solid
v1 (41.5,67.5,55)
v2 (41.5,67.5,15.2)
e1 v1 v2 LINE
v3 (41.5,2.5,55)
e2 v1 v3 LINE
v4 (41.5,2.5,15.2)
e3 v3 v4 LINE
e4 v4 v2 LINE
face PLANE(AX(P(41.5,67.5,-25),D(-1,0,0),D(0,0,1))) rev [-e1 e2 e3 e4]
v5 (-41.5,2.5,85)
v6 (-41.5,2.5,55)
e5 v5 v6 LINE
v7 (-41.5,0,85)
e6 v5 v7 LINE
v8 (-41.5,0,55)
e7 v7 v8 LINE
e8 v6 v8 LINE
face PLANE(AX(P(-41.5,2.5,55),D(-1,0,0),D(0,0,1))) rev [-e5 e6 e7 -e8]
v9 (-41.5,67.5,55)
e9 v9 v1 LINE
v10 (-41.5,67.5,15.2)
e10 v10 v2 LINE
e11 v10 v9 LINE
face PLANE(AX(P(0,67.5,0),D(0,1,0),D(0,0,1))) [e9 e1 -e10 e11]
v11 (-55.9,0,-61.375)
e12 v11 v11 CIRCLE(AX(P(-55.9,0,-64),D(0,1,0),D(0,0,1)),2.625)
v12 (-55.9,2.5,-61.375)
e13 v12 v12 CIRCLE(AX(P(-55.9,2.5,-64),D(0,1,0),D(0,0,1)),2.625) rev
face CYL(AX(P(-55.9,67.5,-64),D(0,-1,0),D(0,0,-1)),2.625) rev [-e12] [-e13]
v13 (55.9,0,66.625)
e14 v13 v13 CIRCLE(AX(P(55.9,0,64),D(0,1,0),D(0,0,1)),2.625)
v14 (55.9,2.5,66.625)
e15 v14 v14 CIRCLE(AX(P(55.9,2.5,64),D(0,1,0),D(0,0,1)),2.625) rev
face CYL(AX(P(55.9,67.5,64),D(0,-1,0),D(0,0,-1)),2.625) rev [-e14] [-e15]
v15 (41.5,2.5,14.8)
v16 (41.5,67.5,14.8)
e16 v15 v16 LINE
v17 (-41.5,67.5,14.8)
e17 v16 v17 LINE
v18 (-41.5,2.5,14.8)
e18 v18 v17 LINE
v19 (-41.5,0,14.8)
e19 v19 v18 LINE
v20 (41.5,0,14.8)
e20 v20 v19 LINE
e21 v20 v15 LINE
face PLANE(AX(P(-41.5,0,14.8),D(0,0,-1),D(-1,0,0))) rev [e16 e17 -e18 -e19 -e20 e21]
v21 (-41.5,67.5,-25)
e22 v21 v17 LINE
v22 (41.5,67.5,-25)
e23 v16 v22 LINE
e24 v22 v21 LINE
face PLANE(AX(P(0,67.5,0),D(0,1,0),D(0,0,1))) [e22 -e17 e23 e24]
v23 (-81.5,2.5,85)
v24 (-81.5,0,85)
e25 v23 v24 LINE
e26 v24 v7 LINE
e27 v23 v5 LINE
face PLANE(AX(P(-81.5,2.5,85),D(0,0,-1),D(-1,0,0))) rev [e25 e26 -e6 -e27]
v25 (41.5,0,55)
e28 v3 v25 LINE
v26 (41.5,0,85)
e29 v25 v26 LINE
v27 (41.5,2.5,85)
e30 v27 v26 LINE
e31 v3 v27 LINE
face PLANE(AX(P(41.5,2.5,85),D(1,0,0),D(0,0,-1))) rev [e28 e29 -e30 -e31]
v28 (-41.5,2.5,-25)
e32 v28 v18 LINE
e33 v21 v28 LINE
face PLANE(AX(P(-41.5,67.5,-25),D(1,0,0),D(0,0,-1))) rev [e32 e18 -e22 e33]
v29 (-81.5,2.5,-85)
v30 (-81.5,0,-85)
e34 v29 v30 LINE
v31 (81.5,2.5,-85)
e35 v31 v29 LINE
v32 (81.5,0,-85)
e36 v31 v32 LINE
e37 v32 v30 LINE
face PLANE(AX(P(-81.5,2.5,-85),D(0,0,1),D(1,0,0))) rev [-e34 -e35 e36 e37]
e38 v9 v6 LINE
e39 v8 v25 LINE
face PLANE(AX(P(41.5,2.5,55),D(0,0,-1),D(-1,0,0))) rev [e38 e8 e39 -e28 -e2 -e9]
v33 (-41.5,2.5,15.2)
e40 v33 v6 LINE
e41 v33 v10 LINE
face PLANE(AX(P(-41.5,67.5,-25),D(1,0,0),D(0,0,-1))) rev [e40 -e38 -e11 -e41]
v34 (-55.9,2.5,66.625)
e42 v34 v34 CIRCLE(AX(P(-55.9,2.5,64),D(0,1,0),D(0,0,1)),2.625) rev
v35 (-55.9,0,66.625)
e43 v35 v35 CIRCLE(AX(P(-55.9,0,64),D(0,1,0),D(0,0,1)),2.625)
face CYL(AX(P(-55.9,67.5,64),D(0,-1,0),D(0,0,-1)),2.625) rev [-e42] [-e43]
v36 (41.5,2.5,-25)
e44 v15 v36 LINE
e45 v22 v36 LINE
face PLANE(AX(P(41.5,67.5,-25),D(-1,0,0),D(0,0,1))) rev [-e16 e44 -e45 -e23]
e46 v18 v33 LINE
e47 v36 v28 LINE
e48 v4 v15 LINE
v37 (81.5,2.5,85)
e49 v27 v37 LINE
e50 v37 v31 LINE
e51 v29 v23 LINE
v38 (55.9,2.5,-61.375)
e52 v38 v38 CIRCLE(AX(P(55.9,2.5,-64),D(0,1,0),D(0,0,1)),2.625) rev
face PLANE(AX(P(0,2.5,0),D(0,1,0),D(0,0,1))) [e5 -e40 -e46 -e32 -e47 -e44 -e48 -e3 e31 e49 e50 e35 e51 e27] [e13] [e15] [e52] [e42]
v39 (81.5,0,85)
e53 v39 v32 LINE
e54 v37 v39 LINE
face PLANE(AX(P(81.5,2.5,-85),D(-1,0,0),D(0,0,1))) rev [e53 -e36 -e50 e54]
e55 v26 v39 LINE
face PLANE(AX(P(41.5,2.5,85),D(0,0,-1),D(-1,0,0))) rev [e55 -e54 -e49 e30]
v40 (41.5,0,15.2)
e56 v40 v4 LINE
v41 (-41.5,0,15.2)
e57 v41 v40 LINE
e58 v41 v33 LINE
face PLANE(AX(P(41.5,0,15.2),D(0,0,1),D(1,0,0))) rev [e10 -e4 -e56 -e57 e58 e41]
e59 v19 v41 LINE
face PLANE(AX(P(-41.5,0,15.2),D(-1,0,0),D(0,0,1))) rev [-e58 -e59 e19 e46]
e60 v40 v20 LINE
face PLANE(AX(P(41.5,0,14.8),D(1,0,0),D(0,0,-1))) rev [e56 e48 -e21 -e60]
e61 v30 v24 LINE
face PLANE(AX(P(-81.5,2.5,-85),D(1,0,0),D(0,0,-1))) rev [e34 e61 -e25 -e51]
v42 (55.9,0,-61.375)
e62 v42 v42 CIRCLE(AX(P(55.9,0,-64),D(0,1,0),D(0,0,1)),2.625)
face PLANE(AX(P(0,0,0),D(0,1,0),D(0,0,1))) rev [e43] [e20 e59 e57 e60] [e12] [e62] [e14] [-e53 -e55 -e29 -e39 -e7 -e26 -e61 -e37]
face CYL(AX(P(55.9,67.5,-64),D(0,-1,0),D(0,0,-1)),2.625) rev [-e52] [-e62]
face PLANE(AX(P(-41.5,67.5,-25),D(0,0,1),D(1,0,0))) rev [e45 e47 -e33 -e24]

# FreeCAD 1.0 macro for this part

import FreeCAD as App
import Part
import Sketcher

V = App.Vector

doc = App.newDocument("Part")
body = doc.addObject("PartDesign::Body", "Body")

# Sketch on XZ plane
sketch1 = doc.addObject("Sketcher::SketchObject", "Sketch")
body.addObject(sketch1)
sketch1.AttachmentSupport = (doc.XZ_Plane, [""])
sketch1.MapMode = "FlatFace"
sketch1.addGeometry([
    Part.LineSegment(V(42, 85, 0), V(82, 85, 0)),  # 0
    Part.LineSegment(V(82, 85, 0), V(82, -85, 0)),  # 1
    Part.LineSegment(V(82, -85, 0), V(-82, -85, 0)),  # 2
    Part.LineSegment(V(-82, -85, 0), V(-82, 85, 0)),  # 3
    Part.LineSegment(V(-82, 85, 0), V(-42, 85, 0)),  # 4
    Part.LineSegment(V(-42, 85, 0), V(-42, 55, 0)),  # 5
    Part.LineSegment(V(-42, 55, 0), V(42, 55, 0)),  # 6
    Part.LineSegment(V(42, 55, 0), V(42, 85, 0)),  # 7
], False)
sketch1.addConstraint([
    Sketcher.Constraint("Coincident", 0, 2, 1, 1),
    Sketcher.Constraint("Coincident", 1, 2, 2, 1),
    Sketcher.Constraint("Coincident", 2, 2, 3, 1),
    Sketcher.Constraint("Coincident", 3, 2, 4, 1),
    Sketcher.Constraint("Coincident", 4, 2, 5, 1),
    Sketcher.Constraint("Coincident", 5, 2, 6, 1),
    Sketcher.Constraint("Coincident", 6, 2, 7, 1),
    Sketcher.Constraint("Coincident", 7, 2, 0, 1),
    Sketcher.Constraint("Horizontal", 0),
    Sketcher.Constraint("Vertical", 1),
    Sketcher.Constraint("Horizontal", 2),
    Sketcher.Constraint("Vertical", 3),
    Sketcher.Constraint("Horizontal", 4),
    Sketcher.Constraint("Vertical", 5),
    Sketcher.Constraint("Horizontal", 6),
    Sketcher.Constraint("Vertical", 7),
    Sketcher.Constraint("Symmetric", 0, 2, 2, 2, -1, 1),
    Sketcher.Constraint("Symmetric", 4, 2, 7, 2, -2),
    Sketcher.Constraint("DistanceX", 0, 1, 0, 2, 40.0),
    Sketcher.Constraint("DistanceX", 2, 2, 2, 1, 163.0),
    Sketcher.Constraint("DistanceY", 1, 2, 1, 1, 170.0),
    Sketcher.Constraint("DistanceY", 5, 2, 5, 1, 30.0),
])
pad1 = doc.addObject("PartDesign::Pad", "Pad")
body.addObject(pad1)
pad1.Profile = sketch1
pad1.Length = 2.5
pad1.Reversed = True

# Sketch on XZ plane
sketch2 = doc.addObject("Sketcher::SketchObject", "Sketch001")
body.addObject(sketch2)
sketch2.AttachmentSupport = (doc.XZ_Plane, [""])
sketch2.MapMode = "FlatFace"
sketch2.AttachmentOffset = App.Placement(V(0, 0, -2.5), App.Rotation())
sketch2.addGeometry([
    Part.LineSegment(V(-42, -25, 0), V(-42, 55, 0)),
    Part.LineSegment(V(-42, 55, 0), V(42, 55, 0)),
    Part.LineSegment(V(42, 55, 0), V(42, -25, 0)),
    Part.LineSegment(V(42, -25, 0), V(-42, -25, 0)),
], False)
sketch2.addConstraint([
    Sketcher.Constraint("Coincident", 0, 2, 1, 1),
    Sketcher.Constraint("Coincident", 1, 2, 2, 1),
    Sketcher.Constraint("Coincident", 2, 2, 3, 1),
    Sketcher.Constraint("Coincident", 3, 2, 0, 1),
    Sketcher.Constraint("Vertical", 0),
    Sketcher.Constraint("Horizontal", 1),
    Sketcher.Constraint("Vertical", 2),
    Sketcher.Constraint("Horizontal", 3),
    Sketcher.Constraint("DistanceX", 1, 1, 1, 2, 83.0),
    Sketcher.Constraint("DistanceY", 0, 1, 0, 2, 80.0),
    Sketcher.Constraint("DistanceY", -1, 1, 0, 2, 55.0),
    Sketcher.Constraint("DistanceX", 0, 2, -1, 1, 41.5),
])
pad2 = doc.addObject("PartDesign::Pad", "Pad001")
body.addObject(pad2)
pad2.Profile = sketch2
pad2.Length = 65
pad2.Reversed = True

# Sketch on XZ plane
sketch3 = doc.addObject("Sketcher::SketchObject", "Sketch002")
body.addObject(sketch3)
sketch3.AttachmentSupport = (doc.XZ_Plane, [""])
sketch3.MapMode = "FlatFace"
sketch3.AttachmentOffset = App.Placement(V(0, 0, -70), App.Rotation())
sketch3.addGeometry([
    Part.LineSegment(V(-41.5, 14.8, 0), V(-41.5, 15.2, 0)),
    Part.LineSegment(V(-41.5, 15.2, 0), V(41.5, 15.2, 0)),
    Part.LineSegment(V(41.5, 15.2, 0), V(41.5, 14.8, 0)),
    Part.LineSegment(V(41.5, 14.8, 0), V(-41.5, 14.8, 0)),
], False)
sketch3.addConstraint([
    Sketcher.Constraint("Coincident", 0, 2, 1, 1),
    Sketcher.Constraint("Coincident", 1, 2, 2, 1),
    Sketcher.Constraint("Coincident", 2, 2, 3, 1),
    Sketcher.Constraint("Coincident", 3, 2, 0, 1),
    Sketcher.Constraint("Vertical", 0),
    Sketcher.Constraint("Horizontal", 1),
    Sketcher.Constraint("Vertical", 2),
    Sketcher.Constraint("Horizontal", 3),
    Sketcher.Constraint("DistanceX", 1, 1, 1, 2, 83.0),
    Sketcher.Constraint("DistanceY", 0, 1, 0, 2, 0.4),
    Sketcher.Constraint("DistanceX", 0, 2, -1, 1, 41.5),
    Sketcher.Constraint("DistanceY", -1, 1, 0, 2, 15.2),
])
pocket1 = doc.addObject("PartDesign::Pocket", "Pocket")
body.addObject(pocket1)
pocket1.Profile = sketch3
pocket1.Type = "ThroughAll"
pocket1.Reversed = True

# Sketch on XZ plane
sketch4 = doc.addObject("Sketcher::SketchObject", "Sketch003")
body.addObject(sketch4)
sketch4.AttachmentSupport = (doc.XZ_Plane, [""])
sketch4.MapMode = "FlatFace"
sketch4.addGeometry([
    Part.Circle(V(-55.9, 64, 0), V(0, 0, 1), 2.6),
    Part.Circle(V(55.9, 64, 0), V(0, 0, 1), 2.6),
    Part.Circle(V(-55.9, -64, 0), V(0, 0, 1), 2.6),
    Part.Circle(V(55.9, -64, 0), V(0, 0, 1), 2.6),
], False)
sketch4.addConstraint([
    Sketcher.Constraint("Equal", 0, 1),
    Sketcher.Constraint("Equal", 1, 2),
    Sketcher.Constraint("Equal", 2, 3),
    Sketcher.Constraint("Symmetric", 1, 3, 2, 3, -1, 1),
    Sketcher.Constraint("Symmetric", 0, 3, 3, 3, -1, 1),
    Sketcher.Constraint("Symmetric", 0, 3, 1, 3, -2),
    Sketcher.Constraint("Diameter", 0, 5.25),
    Sketcher.Constraint("DistanceY", -1, 1, 0, 3, 64.0),
    Sketcher.Constraint("DistanceX", 0, 3, -1, 1, 55.9),
])
pocket2 = doc.addObject("PartDesign::Pocket", "Pocket001")
body.addObject(pocket2)
pocket2.Profile = sketch4
pocket2.Type = "ThroughAll"

doc.recompute()
